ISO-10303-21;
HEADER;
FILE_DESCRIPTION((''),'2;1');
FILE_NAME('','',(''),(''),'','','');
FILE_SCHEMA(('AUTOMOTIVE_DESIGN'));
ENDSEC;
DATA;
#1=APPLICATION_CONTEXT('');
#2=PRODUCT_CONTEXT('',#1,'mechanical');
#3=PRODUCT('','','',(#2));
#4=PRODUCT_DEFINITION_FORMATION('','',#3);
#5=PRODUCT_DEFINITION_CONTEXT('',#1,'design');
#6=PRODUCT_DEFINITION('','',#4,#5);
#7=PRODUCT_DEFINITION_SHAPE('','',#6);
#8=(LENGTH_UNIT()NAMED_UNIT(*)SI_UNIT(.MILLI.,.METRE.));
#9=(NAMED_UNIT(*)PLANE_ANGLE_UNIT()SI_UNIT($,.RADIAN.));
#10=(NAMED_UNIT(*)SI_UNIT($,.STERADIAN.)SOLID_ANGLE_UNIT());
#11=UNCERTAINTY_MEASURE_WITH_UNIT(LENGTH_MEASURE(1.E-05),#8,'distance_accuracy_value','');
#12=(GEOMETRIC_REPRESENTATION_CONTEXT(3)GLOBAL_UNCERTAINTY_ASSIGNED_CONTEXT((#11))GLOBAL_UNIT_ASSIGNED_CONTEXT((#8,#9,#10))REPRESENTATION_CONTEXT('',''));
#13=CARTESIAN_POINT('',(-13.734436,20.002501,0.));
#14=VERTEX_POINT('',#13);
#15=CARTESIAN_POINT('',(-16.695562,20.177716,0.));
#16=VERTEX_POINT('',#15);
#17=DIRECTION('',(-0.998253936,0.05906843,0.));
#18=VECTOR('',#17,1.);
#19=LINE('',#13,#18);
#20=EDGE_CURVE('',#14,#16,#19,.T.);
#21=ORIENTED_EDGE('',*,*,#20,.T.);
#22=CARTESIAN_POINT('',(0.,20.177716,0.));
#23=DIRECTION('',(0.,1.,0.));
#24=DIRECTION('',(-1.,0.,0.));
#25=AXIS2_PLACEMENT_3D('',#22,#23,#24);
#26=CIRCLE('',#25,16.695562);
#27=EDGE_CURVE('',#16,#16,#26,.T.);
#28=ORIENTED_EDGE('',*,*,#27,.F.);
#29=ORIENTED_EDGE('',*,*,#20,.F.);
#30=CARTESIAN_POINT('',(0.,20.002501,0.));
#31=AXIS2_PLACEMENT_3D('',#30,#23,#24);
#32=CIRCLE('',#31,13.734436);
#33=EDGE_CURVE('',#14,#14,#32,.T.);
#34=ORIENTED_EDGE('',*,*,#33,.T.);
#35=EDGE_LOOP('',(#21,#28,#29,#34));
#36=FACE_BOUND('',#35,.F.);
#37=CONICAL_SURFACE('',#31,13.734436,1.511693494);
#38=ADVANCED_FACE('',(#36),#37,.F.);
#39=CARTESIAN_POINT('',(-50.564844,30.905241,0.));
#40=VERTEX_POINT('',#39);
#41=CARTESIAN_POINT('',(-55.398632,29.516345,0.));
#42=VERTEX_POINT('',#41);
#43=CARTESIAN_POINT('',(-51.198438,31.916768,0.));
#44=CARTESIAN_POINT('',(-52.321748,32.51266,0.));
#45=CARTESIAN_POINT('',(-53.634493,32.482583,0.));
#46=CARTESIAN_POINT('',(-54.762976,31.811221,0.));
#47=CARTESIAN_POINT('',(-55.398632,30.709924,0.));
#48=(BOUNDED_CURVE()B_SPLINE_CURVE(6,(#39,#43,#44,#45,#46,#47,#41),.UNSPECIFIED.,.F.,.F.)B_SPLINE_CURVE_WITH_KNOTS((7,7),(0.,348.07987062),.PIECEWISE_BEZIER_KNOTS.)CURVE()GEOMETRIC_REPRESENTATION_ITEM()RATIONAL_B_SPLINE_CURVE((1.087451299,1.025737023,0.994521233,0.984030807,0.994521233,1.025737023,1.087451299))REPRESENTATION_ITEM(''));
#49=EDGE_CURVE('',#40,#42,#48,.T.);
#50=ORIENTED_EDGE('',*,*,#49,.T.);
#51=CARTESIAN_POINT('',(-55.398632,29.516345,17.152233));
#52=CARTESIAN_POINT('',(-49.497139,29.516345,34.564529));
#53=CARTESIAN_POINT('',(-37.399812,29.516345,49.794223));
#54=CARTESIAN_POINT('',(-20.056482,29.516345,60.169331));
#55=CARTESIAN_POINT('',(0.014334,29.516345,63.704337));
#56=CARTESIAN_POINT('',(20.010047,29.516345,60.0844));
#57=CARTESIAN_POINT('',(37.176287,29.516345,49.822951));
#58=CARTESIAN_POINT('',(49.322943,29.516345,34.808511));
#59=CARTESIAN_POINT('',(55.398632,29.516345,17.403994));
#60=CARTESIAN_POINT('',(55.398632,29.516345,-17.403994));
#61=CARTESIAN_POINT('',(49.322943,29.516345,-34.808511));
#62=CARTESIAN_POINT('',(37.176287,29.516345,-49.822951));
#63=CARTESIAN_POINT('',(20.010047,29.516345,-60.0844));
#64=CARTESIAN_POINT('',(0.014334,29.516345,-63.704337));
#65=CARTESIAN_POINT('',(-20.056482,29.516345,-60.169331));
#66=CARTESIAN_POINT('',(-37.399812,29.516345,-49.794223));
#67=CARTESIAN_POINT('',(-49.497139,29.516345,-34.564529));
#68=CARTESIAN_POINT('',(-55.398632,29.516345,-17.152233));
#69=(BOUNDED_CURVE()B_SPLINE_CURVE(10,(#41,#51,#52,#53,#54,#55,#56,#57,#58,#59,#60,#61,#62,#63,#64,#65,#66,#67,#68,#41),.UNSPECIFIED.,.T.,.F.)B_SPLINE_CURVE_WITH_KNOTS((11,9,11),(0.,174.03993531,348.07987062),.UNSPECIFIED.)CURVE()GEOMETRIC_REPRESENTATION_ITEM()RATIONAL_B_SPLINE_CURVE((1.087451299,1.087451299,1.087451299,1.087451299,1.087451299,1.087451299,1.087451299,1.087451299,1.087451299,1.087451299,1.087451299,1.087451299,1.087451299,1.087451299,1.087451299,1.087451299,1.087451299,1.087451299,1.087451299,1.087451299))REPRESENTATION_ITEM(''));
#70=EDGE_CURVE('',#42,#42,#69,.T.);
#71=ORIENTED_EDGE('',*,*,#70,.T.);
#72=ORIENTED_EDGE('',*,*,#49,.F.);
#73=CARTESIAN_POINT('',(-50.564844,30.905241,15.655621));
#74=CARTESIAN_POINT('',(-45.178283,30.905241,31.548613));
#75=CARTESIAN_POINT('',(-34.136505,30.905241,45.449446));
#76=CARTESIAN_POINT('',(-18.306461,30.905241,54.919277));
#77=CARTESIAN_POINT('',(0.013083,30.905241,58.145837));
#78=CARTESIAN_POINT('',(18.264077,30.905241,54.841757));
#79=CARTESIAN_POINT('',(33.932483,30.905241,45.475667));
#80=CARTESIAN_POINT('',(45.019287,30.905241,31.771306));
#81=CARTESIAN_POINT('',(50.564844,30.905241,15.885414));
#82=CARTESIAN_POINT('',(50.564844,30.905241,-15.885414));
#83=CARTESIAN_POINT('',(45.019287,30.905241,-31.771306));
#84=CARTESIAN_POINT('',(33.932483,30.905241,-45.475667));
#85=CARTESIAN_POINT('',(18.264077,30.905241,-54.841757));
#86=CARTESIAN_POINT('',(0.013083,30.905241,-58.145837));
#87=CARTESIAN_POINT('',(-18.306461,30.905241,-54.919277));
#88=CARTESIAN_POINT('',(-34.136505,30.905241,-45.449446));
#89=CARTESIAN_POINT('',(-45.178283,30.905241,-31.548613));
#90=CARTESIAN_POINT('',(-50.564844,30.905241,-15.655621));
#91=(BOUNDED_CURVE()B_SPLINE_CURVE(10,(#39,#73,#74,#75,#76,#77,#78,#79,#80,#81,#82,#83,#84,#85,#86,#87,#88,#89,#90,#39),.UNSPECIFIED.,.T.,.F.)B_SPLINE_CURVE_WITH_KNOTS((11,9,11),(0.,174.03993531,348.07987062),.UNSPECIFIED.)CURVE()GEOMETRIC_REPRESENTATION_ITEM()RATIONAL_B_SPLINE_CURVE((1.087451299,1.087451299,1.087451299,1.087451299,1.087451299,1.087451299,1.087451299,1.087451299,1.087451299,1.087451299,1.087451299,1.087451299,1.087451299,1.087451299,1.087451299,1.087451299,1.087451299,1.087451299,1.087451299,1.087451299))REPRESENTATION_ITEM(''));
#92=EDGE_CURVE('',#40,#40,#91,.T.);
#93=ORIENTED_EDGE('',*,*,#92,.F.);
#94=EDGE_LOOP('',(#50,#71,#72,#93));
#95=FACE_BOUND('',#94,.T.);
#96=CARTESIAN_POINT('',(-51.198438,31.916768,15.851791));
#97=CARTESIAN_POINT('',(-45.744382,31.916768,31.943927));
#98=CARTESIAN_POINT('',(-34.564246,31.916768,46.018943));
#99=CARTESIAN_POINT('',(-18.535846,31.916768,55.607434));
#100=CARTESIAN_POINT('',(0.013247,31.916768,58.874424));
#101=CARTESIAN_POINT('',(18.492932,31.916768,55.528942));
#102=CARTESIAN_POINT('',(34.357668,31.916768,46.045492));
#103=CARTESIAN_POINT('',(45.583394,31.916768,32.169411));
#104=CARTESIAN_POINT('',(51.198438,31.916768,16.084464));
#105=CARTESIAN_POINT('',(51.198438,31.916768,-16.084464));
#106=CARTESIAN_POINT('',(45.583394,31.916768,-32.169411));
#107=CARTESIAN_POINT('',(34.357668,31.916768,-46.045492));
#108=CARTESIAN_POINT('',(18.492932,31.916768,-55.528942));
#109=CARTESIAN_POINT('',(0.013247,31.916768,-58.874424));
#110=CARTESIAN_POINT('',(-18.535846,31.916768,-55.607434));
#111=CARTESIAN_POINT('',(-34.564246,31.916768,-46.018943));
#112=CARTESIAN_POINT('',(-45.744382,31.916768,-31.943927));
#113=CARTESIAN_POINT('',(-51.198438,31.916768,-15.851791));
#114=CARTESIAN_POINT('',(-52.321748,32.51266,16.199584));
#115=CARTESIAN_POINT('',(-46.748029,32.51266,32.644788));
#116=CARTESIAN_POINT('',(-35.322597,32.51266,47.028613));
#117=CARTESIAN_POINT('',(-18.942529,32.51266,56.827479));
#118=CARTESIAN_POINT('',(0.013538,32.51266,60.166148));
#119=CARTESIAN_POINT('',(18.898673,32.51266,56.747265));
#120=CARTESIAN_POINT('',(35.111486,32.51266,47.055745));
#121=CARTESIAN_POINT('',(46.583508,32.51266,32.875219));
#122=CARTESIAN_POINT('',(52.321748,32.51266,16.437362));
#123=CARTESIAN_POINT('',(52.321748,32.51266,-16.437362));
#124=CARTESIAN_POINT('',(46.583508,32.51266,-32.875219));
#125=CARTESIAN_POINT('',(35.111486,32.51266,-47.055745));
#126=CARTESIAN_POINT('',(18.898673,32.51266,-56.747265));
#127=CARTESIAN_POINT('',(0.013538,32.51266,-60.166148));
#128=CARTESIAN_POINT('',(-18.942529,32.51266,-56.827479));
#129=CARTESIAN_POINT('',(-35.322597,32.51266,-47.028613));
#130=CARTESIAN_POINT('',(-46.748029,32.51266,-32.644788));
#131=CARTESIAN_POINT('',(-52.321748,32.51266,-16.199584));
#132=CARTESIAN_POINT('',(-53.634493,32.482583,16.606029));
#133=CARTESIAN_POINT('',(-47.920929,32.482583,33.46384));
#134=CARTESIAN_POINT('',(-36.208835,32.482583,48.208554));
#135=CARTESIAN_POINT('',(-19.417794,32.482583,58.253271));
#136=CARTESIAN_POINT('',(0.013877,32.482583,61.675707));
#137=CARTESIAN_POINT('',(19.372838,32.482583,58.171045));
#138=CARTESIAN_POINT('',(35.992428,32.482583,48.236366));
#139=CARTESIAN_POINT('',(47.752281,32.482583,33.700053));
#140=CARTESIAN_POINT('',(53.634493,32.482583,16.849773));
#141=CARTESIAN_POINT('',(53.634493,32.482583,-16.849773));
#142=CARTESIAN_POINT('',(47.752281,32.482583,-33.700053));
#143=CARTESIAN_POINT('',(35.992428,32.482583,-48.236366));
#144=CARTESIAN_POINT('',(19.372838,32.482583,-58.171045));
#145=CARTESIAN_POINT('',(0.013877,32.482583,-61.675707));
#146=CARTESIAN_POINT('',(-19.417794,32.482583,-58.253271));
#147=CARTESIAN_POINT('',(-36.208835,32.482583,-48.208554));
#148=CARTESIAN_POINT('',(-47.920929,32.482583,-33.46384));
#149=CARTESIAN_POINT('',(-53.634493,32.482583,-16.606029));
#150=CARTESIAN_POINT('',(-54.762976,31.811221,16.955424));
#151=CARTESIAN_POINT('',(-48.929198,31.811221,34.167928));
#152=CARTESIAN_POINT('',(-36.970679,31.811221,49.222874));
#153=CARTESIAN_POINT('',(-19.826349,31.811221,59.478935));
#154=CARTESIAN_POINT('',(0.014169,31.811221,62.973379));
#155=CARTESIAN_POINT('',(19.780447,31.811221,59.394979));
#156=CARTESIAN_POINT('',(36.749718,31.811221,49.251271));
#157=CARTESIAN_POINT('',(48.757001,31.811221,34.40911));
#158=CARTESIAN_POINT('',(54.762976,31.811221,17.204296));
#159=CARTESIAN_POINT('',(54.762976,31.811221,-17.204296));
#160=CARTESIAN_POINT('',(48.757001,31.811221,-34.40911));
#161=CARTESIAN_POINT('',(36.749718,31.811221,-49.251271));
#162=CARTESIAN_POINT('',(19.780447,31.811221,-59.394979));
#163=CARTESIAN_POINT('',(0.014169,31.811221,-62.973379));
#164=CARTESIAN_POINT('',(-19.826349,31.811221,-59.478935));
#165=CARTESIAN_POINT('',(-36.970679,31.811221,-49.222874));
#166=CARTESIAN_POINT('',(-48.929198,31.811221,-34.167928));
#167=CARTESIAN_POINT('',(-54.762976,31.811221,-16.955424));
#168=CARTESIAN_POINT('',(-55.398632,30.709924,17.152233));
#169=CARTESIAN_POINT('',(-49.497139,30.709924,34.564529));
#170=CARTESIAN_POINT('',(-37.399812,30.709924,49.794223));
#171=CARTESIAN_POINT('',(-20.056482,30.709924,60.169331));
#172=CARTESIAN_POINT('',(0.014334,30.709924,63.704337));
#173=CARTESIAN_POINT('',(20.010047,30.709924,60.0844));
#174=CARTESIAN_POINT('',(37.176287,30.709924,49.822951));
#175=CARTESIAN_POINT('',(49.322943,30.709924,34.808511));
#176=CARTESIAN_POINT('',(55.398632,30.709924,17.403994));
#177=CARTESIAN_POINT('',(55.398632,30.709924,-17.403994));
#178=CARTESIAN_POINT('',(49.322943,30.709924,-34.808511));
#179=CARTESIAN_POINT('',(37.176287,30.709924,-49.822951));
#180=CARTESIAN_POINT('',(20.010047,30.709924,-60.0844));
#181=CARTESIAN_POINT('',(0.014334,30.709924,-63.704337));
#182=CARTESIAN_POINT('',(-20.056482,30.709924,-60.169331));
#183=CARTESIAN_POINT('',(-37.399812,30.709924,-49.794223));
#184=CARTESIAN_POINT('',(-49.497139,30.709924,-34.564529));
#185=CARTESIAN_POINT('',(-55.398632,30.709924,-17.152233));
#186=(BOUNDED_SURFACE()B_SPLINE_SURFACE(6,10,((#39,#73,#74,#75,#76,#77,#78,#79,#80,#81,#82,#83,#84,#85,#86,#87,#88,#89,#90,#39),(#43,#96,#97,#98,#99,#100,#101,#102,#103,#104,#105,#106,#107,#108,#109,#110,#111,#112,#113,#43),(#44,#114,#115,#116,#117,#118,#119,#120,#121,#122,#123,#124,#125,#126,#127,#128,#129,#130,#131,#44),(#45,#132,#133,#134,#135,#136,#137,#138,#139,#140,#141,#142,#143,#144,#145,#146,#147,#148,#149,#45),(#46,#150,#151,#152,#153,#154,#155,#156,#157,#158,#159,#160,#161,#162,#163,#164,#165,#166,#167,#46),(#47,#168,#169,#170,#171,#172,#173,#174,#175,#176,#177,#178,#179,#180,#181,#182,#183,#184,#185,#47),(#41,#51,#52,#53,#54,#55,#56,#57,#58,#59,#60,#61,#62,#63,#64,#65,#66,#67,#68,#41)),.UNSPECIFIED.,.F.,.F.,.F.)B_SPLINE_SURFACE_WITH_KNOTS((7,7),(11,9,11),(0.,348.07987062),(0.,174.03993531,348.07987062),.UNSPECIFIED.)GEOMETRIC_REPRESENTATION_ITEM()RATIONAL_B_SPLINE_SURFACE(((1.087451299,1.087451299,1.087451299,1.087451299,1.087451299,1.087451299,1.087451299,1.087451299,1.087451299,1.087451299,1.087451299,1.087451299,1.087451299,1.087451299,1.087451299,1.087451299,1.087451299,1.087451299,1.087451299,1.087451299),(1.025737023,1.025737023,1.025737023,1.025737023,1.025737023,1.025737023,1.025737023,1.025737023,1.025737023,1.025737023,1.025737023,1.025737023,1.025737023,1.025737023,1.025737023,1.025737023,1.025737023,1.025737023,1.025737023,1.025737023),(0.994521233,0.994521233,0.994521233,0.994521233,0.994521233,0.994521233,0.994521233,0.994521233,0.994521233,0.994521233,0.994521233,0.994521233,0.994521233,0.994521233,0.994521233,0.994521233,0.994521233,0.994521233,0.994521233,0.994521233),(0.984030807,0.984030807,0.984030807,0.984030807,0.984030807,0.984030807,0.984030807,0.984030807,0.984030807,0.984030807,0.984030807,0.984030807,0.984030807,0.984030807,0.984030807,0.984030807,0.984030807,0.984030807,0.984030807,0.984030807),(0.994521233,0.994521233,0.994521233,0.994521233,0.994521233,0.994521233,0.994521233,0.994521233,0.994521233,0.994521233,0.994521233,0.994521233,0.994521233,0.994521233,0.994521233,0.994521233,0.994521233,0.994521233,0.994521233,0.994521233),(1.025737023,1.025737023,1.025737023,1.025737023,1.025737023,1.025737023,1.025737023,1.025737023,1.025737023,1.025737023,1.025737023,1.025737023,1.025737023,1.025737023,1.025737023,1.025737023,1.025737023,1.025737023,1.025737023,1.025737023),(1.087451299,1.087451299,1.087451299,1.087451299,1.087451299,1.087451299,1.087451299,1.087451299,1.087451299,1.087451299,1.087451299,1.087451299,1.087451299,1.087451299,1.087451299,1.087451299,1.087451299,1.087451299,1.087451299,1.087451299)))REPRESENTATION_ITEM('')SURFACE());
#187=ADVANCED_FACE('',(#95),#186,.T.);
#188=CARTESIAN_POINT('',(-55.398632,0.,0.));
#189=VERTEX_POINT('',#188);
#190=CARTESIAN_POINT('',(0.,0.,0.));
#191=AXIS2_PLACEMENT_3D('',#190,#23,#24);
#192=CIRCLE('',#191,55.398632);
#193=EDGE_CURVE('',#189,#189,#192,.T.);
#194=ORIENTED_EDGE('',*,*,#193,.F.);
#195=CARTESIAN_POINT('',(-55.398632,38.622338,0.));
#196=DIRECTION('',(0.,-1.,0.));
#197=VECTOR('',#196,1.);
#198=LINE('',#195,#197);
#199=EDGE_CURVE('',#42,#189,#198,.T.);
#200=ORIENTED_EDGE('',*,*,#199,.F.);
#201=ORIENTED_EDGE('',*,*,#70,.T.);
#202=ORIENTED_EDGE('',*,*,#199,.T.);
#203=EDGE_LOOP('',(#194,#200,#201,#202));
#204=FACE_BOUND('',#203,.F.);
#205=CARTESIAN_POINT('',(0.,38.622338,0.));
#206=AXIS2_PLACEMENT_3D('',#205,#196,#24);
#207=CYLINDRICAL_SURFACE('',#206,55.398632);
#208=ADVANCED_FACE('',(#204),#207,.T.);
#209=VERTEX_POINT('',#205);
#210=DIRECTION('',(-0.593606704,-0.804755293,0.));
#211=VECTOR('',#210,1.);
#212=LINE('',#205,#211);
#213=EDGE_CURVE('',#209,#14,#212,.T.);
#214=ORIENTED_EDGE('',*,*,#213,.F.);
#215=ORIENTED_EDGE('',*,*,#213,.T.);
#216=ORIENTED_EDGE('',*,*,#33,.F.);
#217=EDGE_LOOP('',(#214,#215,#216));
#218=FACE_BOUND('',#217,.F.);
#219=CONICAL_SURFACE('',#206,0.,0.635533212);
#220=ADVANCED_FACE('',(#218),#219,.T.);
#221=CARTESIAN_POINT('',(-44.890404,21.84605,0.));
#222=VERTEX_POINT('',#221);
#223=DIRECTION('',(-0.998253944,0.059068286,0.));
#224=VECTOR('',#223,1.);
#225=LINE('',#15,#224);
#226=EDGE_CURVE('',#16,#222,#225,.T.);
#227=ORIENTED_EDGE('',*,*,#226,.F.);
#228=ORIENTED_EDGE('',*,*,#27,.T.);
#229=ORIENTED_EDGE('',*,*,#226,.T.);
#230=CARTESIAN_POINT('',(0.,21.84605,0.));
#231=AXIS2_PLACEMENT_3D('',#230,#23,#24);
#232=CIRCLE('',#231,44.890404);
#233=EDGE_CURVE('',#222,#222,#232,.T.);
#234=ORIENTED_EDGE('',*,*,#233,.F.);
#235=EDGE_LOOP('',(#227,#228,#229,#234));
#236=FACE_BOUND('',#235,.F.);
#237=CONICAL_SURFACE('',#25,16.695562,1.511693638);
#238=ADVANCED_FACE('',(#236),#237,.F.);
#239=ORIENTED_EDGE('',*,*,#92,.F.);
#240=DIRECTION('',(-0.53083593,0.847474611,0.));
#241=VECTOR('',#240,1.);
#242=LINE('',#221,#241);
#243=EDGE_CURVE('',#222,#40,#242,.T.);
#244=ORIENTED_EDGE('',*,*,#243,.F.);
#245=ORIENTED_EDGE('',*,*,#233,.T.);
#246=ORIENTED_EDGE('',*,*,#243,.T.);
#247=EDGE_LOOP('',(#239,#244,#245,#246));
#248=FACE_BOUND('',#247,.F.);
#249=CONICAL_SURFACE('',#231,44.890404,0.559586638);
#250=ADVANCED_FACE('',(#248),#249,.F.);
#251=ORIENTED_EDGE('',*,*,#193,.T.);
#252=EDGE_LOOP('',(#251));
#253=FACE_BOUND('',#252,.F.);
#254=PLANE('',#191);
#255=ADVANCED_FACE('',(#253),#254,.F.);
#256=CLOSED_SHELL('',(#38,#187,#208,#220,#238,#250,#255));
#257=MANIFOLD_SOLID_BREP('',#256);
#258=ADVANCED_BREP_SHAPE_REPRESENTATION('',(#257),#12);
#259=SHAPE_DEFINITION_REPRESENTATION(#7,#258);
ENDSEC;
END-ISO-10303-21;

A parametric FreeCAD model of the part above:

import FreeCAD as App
import Part
import Sketcher
Q = App.Units.Quantity


def edges_at(feature, points):
    """Names of the edges that pass closest to the given points."""
    edges = feature.Shape.Edges
    near = lambda p: min(range(len(edges)), key=lambda i: edges[i].distToShape(Part.Vertex(*p))[0])
    return sorted({f"Edge{near(p) + 1}" for p in points})


def add_polygon(sketch, points):
    """Adds a closed chain of lines whose ends are joined by coincident constraints."""
    first, n = sketch.GeometryCount, len(points)
    for a, b in zip(points, points[1:] + points[:1]):
        sketch.addGeometry(Part.LineSegment(App.Vector(*a, 0), App.Vector(*b, 0)), False)
    for i in range(n):
        sketch.addConstraint(Sketcher.Constraint("Coincident", first + i, 2, first + (i + 1) % n, 1))

doc = App.newDocument("Part")
body = doc.addObject("PartDesign::Body", "Body")

# Sketch on XY plane
sketch1 = doc.addObject("Sketcher::SketchObject", "Sketch")
body.addObject(sketch1)
sketch1.AttachmentSupport = (doc.XY_Plane, [""])
sketch1.MapMode = "FlatFace"
add_polygon(sketch1, [(-55.4, 0), (0, 0), (0, 38.6), (-13.7, 20), (-16.7, 20.2), (-44.9, 21.8), (-55.4, 38.6)])  # lines 0-6
sketch1.addConstraint(Sketcher.Constraint("Horizontal", 0))
sketch1.addConstraint(Sketcher.Constraint("Vertical", 1))
sketch1.addConstraint(Sketcher.Constraint("Vertical", 6))
sketch1.addConstraint(Sketcher.Constraint("Coincident", 0, 2, -1, 1))
sketch1.addConstraint(Sketcher.Constraint("Parallel", 3, 4))
sketch1.addConstraint(Sketcher.Constraint("Horizontal", 1, 2, 5, 2))
sketch1.addConstraint(Sketcher.Constraint("DistanceY", -1, 1, 2, 2, Q("20.002501 mm")))
sketch1.addConstraint(Sketcher.Constraint("DistanceX", 0, 1, 0, 2, Q("55.398632 mm")))
sketch1.addConstraint(Sketcher.Constraint("DistanceY", 1, 1, 1, 2, Q("38.622338 mm")))
sketch1.addConstraint(Sketcher.Constraint("DistanceX", 3, 2, -1, 1, Q("16.695562 mm")))
sketch1.addConstraint(Sketcher.Constraint("DistanceY", -1, 1, 4, 2, Q("21.84605 mm")))
sketch1.addConstraint(Sketcher.Constraint("DistanceY", 3, 2, 1, 2, Q("18.444622 mm")))
sketch1.addConstraint(Sketcher.Constraint("DistanceX", 4, 2, 3, 2, Q("28.194842 mm")))
revolution = doc.addObject("PartDesign::Revolution", "Revolution")
body.addObject(revolution)
revolution.Profile = sketch1
revolution.ReferenceAxis = (sketch1, ["V_Axis"])
revolution.Angle = 360
doc.recompute()

fillet = doc.addObject("PartDesign::Fillet", "Fillet")
body.addObject(fillet)
fillet.Base = (revolution, edges_at(revolution, [(55.399, 38.622, 0)]))
fillet.Radius = 2.61643

doc.recompute()
